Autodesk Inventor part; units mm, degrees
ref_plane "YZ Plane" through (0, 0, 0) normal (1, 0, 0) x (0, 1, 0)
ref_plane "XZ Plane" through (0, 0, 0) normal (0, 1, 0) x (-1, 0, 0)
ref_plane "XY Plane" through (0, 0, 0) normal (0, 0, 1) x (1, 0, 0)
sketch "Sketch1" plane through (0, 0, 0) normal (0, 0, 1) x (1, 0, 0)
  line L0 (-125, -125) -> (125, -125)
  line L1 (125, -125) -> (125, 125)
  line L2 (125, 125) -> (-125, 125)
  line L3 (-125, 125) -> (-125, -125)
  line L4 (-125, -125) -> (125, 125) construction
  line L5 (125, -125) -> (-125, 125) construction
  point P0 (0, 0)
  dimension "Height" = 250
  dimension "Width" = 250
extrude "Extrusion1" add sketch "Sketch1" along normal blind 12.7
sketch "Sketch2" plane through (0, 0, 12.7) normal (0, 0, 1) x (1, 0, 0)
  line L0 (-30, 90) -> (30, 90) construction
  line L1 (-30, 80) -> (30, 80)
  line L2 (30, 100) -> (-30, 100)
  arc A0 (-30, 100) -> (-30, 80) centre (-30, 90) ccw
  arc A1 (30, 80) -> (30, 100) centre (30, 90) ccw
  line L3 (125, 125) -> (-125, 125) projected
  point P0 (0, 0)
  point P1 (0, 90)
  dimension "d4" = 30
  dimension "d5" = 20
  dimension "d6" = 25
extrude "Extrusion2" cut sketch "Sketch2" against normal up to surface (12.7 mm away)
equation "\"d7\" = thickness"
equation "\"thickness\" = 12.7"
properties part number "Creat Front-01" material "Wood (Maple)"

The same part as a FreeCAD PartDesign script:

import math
import FreeCAD as App
import Part
import Sketcher

V = App.Vector

doc = App.newDocument("Part")
body = doc.addObject("PartDesign::Body", "Body")

sketch1 = body.newObject("Sketcher::SketchObject", "Sketch")
sketch1.AttachmentSupport = (doc.getObject("XY_Plane"), [""])
sketch1.MapMode = "FlatFace"
sketch1.addGeometry(Part.LineSegment(V(-125, 125, 0), V(-125, -125, 0)), False)
sketch1.addGeometry(Part.LineSegment(V(-125, -125, 0), V(125, -125, 0)), False)
sketch1.addGeometry(Part.LineSegment(V(125, -125, 0), V(125, 125, 0)), False)
sketch1.addGeometry(Part.LineSegment(V(125, 125, 0), V(-125, 125, 0)), False)
sketch1.addConstraint(Sketcher.Constraint("Coincident", 0, 2, 1, 1))
sketch1.addConstraint(Sketcher.Constraint("Coincident", 1, 2, 2, 1))
sketch1.addConstraint(Sketcher.Constraint("Coincident", 2, 2, 3, 1))
sketch1.addConstraint(Sketcher.Constraint("Coincident", 3, 2, 0, 1))
sketch1.addConstraint(Sketcher.Constraint("Vertical", 0))
sketch1.addConstraint(Sketcher.Constraint("Horizontal", 1))
sketch1.addConstraint(Sketcher.Constraint("Vertical", 2))
sketch1.addConstraint(Sketcher.Constraint("Horizontal", 3))
sketch1.addConstraint(Sketcher.Constraint("Symmetric", 0, 2, 2, 2, -1, 1))
sketch1.addConstraint(Sketcher.Constraint("Equal", 3, 0))
sketch1.addConstraint(Sketcher.Constraint("DistanceX", 1, 1, 1, 2, 250.0))
pad1 = body.newObject("PartDesign::Pad", "Pad")
pad1.Profile = sketch1
pad1.Length = 12.7

sketch2 = body.newObject("Sketcher::SketchObject", "Sketch001")
sketch2.AttachmentSupport = (doc.getObject("XY_Plane"), [""])
sketch2.MapMode = "FlatFace"
sketch2.AttachmentOffset = App.Placement(V(0, 0, 12.7), App.Rotation())
sketch2.addGeometry(Part.ArcOfCircle(Part.Circle(V(-30, 90, 0), V(0, 0, 1), 10), math.radians(90), math.radians(270)), False)
sketch2.addGeometry(Part.LineSegment(V(-30, 80, 0), V(30, 80, 0)), False)
sketch2.addGeometry(Part.ArcOfCircle(Part.Circle(V(30, 90, 0), V(0, 0, 1), 10), math.radians(-90), math.radians(90)), False)
sketch2.addGeometry(Part.LineSegment(V(30, 100, 0), V(-30, 100, 0)), False)
sketch2.addConstraint(Sketcher.Constraint("Tangent", 0, 2, 1, 1))
sketch2.addConstraint(Sketcher.Constraint("Tangent", 1, 2, 2, 1))
sketch2.addConstraint(Sketcher.Constraint("Tangent", 2, 2, 3, 1))
sketch2.addConstraint(Sketcher.Constraint("Tangent", 3, 2, 0, 1))
sketch2.addConstraint(Sketcher.Constraint("Horizontal", 1))
sketch2.addConstraint(Sketcher.Constraint("Horizontal", 3))
sketch2.addConstraint(Sketcher.Constraint("Radius", 0, 10.0))
sketch2.addConstraint(Sketcher.Constraint("DistanceX", 0, 3, -1, 1, 30.0))
sketch2.addConstraint(Sketcher.Constraint("DistanceX", -1, 1, 2, 3, 30.0))
sketch2.addConstraint(Sketcher.Constraint("DistanceY", -1, 1, 0, 3, 90.0))
pocket1 = body.newObject("PartDesign::Pocket", "Pocket")
pocket1.Profile = sketch2
pocket1.Length = 12.7

doc.recompute()
